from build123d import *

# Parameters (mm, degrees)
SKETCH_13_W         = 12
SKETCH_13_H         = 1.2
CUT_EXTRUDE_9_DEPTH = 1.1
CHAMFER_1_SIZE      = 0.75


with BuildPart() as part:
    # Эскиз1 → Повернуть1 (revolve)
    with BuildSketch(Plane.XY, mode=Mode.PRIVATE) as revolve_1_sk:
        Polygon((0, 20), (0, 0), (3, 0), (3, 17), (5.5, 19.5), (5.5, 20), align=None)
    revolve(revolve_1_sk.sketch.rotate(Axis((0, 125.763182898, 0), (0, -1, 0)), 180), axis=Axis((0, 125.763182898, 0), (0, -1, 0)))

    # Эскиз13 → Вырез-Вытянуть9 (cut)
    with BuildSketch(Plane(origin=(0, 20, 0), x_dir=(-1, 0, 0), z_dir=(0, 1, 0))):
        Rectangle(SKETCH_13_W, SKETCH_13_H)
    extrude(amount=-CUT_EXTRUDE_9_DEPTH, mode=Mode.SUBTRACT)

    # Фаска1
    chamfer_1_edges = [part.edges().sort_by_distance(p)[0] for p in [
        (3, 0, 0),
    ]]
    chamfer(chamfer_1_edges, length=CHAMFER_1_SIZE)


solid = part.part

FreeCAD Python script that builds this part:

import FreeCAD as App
import Part
import Sketcher

V = App.Vector
Q = App.Units.Quantity


def edges_at(feature, points):
    """Names of the edges that pass closest to the given points."""
    edges = feature.Shape.Edges
    near = lambda p: min(range(len(edges)), key=lambda i: edges[i].distToShape(Part.Vertex(*p))[0])
    return sorted({f"Edge{near(p) + 1}" for p in points})


def add_polygon(sketch, points):
    """Adds a closed chain of lines whose ends are joined by coincident constraints."""
    first, n = sketch.GeometryCount, len(points)
    for a, b in zip(points, points[1:] + points[:1]):
        sketch.addGeometry(Part.LineSegment(App.Vector(*a, 0), App.Vector(*b, 0)), False)
    for i in range(n):
        sketch.addConstraint(Sketcher.Constraint("Coincident", first + i, 2, first + (i + 1) % n, 1))

doc = App.newDocument("Part")
params = doc.addObject("Spreadsheet::Sheet", "Params")
for row, (alias, value) in enumerate([
    ("sketch1_width", "3 mm"),
    ("sketch1_height", "20 mm"),
    ("sketch1_height2", "17 mm"),
    ("sketch1_width2", "5.5 mm"),
    ("revolution_angle", "360 deg"),
    ("sketch2_width", "12 mm"),
    ("sketch2_height", "1.2 mm"),
    ("pocket1_length", "1.1 mm"),
    ("chamfer_size", "0.75 mm"),
], start=1):
    params.set(f"A{row}", alias)
    params.set(f"B{row}", "=" + value)
    params.setAlias(f"B{row}", alias)

body = doc.addObject("PartDesign::Body", "Body")

sketch1 = body.newObject("Sketcher::SketchObject", "Sketch")
sketch1.AttachmentSupport = (doc.getObject("XY_Plane"), [""])
sketch1.MapMode = "FlatFace"
add_polygon(sketch1, [(0, 20), (0, 0), (3, 0), (3, 17), (5.5, 19.5), (5.5, 20)])
sketch1.addConstraint([
    Sketcher.Constraint("Vertical", 0),
    Sketcher.Constraint("Horizontal", 1),
    Sketcher.Constraint("Vertical", 2),
    Sketcher.Constraint("Vertical", 4),
    Sketcher.Constraint("Horizontal", 5),
    Sketcher.Constraint("Coincident", 0, 2, -1, 1),
    Sketcher.Constraint("DistanceX", 1, 1, 1, 2, Q("3 mm")),
    Sketcher.Constraint("DistanceY", 0, 2, 0, 1, Q("20 mm")),
    Sketcher.Constraint("DistanceY", 2, 1, 2, 2, Q("17 mm")),
    Sketcher.Constraint("Angle", 3, Q("45 deg")),
    Sketcher.Constraint("DistanceX", 5, 2, 5, 1, Q("5.5 mm")),
])
sketch1.setExpression("Constraints[12]", "Params.sketch1_width")
sketch1.setExpression("Constraints[13]", "Params.sketch1_height")
sketch1.setExpression("Constraints[14]", "Params.sketch1_height2")
sketch1.setExpression("Constraints[16]", "Params.sketch1_width2")
revolution = body.newObject("PartDesign::Revolution", "Revolution")
revolution.Profile = sketch1
revolution.ReferenceAxis = (sketch1, ["V_Axis"])
revolution.setExpression("Angle", "Params.revolution_angle")

sketch2 = body.newObject("Sketcher::SketchObject", "Sketch001")
sketch2.AttachmentSupport = (doc.getObject("XZ_Plane"), [""])
sketch2.MapMode = "FlatFace"
sketch2.AttachmentOffset = App.Placement(V(0, 0, -20), App.Rotation())
add_polygon(sketch2, [(6, 0.6), (6, -0.6), (-6, -0.6), (-6, 0.6)])
sketch2.addConstraint([
    Sketcher.Constraint("Vertical", 0),
    Sketcher.Constraint("Horizontal", 1),
    Sketcher.Constraint("Vertical", 2),
    Sketcher.Constraint("Horizontal", 3),
    Sketcher.Constraint("Symmetric", 0, 2, 2, 2, -1, 1),
    Sketcher.Constraint("DistanceX", 1, 2, 1, 1, Q("12 mm")),
    Sketcher.Constraint("DistanceY", 0, 2, 0, 1, Q("1.2 mm")),
])
sketch2.setExpression("Constraints[9]", "Params.sketch2_width")
sketch2.setExpression("Constraints[10]", "Params.sketch2_height")
pocket1 = body.newObject("PartDesign::Pocket", "Pocket")
pocket1.Profile = sketch2
pocket1.setExpression("Length", "Params.pocket1_length")
pocket1.Reversed = True
doc.recompute()

chamfer = body.newObject("PartDesign::Chamfer", "Chamfer")
chamfer.Base = (pocket1, edges_at(pocket1, [(3, 0, 0)]))
chamfer.setExpression("Size", "Params.chamfer_size")

doc.recompute()
